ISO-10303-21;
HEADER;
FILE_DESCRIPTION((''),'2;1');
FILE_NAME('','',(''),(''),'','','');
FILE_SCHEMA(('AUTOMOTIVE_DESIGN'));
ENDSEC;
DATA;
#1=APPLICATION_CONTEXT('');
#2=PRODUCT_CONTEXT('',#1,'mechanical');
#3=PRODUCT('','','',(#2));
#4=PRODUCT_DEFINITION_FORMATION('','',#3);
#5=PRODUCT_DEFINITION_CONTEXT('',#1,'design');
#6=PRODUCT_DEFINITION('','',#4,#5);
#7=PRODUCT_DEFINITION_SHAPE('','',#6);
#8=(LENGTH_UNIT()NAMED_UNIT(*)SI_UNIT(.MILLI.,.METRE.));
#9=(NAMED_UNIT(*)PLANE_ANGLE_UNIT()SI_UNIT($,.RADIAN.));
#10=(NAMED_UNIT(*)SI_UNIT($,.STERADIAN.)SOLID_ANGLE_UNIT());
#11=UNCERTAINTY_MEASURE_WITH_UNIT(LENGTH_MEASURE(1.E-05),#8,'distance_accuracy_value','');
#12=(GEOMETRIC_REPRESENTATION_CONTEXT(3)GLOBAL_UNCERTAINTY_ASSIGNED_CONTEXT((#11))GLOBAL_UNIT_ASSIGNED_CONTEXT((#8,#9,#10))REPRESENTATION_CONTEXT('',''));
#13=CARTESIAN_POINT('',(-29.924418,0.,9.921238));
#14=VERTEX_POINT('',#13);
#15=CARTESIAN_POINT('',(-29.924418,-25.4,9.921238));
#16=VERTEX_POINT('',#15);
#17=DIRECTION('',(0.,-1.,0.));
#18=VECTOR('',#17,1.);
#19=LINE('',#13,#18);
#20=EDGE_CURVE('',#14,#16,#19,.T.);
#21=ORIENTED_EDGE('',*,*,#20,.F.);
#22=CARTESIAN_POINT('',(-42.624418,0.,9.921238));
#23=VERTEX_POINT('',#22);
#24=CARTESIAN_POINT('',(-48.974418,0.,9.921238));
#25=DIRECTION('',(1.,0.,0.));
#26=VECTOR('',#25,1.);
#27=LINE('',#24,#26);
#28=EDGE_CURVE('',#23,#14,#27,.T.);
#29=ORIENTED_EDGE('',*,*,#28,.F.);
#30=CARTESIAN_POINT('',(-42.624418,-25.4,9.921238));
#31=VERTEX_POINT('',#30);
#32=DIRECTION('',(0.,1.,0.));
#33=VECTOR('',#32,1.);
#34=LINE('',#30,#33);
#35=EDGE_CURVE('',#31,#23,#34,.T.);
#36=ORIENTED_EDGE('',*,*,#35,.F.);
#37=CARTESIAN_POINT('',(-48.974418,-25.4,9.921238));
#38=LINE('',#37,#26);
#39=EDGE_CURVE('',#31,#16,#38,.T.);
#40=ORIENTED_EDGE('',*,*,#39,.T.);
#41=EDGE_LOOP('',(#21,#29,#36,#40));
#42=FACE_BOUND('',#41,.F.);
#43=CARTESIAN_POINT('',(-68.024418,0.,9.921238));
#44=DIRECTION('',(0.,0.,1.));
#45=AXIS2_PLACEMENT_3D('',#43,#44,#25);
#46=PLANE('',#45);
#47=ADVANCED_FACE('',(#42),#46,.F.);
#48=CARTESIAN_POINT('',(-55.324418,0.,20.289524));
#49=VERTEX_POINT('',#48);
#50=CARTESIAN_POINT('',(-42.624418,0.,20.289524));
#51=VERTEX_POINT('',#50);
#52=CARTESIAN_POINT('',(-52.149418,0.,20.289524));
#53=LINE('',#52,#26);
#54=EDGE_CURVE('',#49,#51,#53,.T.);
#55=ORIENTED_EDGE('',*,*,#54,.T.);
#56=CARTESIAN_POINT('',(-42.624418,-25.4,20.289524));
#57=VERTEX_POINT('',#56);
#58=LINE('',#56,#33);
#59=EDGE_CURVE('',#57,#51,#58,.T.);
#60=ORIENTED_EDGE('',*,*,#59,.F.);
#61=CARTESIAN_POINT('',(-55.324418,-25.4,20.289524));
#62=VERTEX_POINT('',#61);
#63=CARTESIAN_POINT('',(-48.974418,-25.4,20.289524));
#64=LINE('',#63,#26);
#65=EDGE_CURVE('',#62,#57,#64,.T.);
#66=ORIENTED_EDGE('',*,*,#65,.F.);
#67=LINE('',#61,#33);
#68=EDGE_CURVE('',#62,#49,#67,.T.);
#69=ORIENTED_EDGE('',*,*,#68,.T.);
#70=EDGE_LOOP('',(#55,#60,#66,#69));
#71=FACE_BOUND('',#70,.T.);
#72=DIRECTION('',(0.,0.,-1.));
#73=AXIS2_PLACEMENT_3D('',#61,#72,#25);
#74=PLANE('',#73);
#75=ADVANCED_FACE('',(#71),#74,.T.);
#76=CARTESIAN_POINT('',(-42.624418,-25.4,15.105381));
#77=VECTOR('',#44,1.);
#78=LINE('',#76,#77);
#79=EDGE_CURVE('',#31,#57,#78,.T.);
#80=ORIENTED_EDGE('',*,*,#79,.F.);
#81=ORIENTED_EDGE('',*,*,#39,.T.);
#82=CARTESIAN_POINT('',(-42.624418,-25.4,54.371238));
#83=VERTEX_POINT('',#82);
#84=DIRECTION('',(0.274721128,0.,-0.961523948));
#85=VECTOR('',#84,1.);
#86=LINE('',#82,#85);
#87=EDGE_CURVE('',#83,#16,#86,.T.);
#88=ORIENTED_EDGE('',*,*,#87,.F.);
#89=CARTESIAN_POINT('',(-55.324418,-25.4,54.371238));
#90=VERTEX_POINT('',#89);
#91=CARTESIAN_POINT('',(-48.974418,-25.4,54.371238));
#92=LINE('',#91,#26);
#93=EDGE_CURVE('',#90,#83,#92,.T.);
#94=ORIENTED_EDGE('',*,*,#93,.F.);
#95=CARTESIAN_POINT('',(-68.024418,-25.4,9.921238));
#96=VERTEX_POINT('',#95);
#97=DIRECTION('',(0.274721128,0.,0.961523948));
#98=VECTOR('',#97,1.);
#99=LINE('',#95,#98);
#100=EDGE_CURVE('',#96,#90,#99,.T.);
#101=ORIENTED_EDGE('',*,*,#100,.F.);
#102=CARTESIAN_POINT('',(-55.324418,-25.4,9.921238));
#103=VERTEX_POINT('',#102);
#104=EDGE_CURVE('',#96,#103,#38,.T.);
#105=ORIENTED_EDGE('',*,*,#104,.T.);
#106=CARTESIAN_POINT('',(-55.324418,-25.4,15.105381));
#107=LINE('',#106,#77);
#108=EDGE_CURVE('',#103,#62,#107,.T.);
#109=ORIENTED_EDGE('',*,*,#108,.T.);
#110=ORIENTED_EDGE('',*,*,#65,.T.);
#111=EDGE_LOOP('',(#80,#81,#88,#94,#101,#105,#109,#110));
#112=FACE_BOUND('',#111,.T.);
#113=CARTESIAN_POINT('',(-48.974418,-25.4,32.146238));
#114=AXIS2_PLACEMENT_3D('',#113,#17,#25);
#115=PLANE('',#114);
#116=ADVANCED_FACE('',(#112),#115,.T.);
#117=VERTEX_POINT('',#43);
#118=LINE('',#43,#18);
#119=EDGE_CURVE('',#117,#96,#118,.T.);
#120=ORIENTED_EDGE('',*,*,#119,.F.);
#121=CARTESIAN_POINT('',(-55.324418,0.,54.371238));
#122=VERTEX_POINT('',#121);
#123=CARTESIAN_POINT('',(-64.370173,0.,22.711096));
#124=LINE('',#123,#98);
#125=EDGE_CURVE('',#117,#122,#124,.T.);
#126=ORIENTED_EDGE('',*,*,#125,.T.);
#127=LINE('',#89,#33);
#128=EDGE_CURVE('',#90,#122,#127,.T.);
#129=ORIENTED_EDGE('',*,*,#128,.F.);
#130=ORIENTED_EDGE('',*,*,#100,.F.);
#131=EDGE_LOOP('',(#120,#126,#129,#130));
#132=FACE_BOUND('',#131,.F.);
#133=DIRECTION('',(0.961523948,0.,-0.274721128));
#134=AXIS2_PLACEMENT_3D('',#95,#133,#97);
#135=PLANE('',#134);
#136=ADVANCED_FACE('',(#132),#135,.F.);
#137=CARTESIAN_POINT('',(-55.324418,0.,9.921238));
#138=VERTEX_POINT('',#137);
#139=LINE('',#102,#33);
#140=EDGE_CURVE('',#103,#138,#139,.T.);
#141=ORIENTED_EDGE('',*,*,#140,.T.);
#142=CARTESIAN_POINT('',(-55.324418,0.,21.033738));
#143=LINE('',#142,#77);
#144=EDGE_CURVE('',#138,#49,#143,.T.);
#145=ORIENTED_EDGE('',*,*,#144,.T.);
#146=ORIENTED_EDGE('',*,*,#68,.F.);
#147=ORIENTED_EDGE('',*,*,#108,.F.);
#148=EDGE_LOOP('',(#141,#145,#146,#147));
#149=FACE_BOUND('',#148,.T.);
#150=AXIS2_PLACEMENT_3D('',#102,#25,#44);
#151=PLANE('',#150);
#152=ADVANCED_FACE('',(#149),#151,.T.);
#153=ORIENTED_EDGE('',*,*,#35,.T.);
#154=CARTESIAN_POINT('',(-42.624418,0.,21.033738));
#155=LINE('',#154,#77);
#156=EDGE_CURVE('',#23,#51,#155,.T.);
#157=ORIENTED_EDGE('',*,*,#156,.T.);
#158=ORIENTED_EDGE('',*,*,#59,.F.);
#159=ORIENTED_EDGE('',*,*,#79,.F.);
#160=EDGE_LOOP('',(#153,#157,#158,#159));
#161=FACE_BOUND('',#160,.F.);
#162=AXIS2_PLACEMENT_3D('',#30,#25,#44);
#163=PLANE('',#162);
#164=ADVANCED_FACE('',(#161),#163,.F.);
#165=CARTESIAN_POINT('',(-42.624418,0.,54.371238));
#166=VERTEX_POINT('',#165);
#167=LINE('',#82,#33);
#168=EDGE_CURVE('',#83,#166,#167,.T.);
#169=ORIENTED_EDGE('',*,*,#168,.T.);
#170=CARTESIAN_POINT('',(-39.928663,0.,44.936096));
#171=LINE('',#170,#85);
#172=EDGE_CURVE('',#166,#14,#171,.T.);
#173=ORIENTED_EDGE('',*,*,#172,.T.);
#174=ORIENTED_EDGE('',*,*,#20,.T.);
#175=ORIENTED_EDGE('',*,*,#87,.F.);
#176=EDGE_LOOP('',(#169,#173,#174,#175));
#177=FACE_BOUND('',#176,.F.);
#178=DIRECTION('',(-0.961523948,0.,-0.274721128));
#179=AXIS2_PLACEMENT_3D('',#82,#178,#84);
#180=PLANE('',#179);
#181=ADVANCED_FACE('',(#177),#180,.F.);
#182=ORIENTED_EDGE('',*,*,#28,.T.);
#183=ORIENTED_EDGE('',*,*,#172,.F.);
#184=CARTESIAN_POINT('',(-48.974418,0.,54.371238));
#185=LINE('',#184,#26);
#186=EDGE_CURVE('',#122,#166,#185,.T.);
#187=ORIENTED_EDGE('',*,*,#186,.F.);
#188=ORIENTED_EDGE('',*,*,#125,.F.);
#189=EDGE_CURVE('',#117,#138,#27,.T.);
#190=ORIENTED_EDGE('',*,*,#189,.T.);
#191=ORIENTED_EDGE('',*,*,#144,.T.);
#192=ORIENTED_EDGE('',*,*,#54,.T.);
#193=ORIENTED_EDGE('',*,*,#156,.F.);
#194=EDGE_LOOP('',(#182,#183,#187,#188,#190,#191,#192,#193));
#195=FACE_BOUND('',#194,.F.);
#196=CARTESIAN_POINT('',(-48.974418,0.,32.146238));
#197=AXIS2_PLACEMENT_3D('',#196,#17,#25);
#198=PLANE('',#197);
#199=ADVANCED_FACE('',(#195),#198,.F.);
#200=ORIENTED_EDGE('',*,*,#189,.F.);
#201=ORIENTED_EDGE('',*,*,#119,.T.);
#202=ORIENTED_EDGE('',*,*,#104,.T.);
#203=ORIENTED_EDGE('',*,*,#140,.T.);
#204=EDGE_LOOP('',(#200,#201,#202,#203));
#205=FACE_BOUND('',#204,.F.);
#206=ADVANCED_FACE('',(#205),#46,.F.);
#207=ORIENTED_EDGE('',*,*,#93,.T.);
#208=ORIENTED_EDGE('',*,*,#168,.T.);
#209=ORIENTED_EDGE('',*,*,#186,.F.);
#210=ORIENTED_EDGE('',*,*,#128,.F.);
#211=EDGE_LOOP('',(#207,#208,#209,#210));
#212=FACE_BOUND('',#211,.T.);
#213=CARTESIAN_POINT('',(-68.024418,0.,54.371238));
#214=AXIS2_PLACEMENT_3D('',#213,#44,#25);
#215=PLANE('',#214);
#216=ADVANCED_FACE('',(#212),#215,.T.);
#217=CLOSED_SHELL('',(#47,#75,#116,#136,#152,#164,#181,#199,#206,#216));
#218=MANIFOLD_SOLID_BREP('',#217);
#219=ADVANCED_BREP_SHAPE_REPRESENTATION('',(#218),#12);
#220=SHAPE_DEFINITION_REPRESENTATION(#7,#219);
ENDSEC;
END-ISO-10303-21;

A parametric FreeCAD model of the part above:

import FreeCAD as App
import Part
import Sketcher

V = App.Vector
Q = App.Units.Quantity

doc = App.newDocument("Part")
body = doc.addObject("PartDesign::Body", "Body")

# Sketch on XZ plane
sketch1 = doc.addObject("Sketcher::SketchObject", "Sketch")
body.addObject(sketch1)
sketch1.AttachmentSupport = (doc.XZ_Plane, [""])
sketch1.MapMode = "FlatFace"
sketch1.addGeometry([
    Part.LineSegment(V(-68.024418, 54.371238, 0), V(-68.024418, 9.921238, 0)),
    Part.LineSegment(V(-68.024418, 9.921238, 0), V(-29.924418, 9.921238, 0)),
    Part.LineSegment(V(-29.924418, 9.921238, 0), V(-29.924418, 54.371238, 0)),
    Part.LineSegment(V(-29.924418, 54.371238, 0), V(-68.024418, 54.371238, 0)),
], False)
sketch1.addConstraint([
    Sketcher.Constraint("Coincident", 0, 2, 1, 1),
    Sketcher.Constraint("Coincident", 1, 2, 2, 1),
    Sketcher.Constraint("Coincident", 2, 2, 3, 1),
    Sketcher.Constraint("Coincident", 3, 2, 0, 1),
    Sketcher.Constraint("Vertical", 0),
    Sketcher.Constraint("Horizontal", 1),
    Sketcher.Constraint("Vertical", 2),
    Sketcher.Constraint("Horizontal", 3),
    Sketcher.Constraint("DistanceX", 1, 1, 1, 2, Q("1.5 in")),
    Sketcher.Constraint("DistanceY", 0, 2, 0, 1, Q("1.75 in")),
    Sketcher.Constraint("DistanceY", -1, 1, 0, 2, Q("0.3905999 in")),
    Sketcher.Constraint("DistanceX", 0, 2, -1, 1, Q("68.024418 mm")),
])
pad1 = doc.addObject("PartDesign::Pad", "Pad")
body.addObject(pad1)
pad1.Profile = sketch1
pad1.Length = Q("1 in")

# Sketch on XZ plane
sketch2 = doc.addObject("Sketcher::SketchObject", "Sketch001")
body.addObject(sketch2)
sketch2.AttachmentSupport = (doc.XZ_Plane, [""])
sketch2.MapMode = "FlatFace"
sketch2.AttachmentOffset = App.Placement(V(0, 0, 1 * 25.4), App.Rotation())
sketch2.addGeometry([
    Part.LineSegment(V(-55.324418, 20.289524, 0), V(-55.324418, 9.921238, 0)),
    Part.LineSegment(V(-55.324418, 9.921238, 0), V(-42.624418, 9.921238, 0)),
    Part.LineSegment(V(-42.624418, 9.921238, 0), V(-42.624418, 20.289524, 0)),
    Part.LineSegment(V(-42.624418, 20.289524, 0), V(-55.324418, 20.289524, 0)),
], False)
sketch2.addConstraint([
    Sketcher.Constraint("Coincident", 0, 2, 1, 1),
    Sketcher.Constraint("Coincident", 1, 2, 2, 1),
    Sketcher.Constraint("Coincident", 2, 2, 3, 1),
    Sketcher.Constraint("Coincident", 3, 2, 0, 1),
    Sketcher.Constraint("Vertical", 0),
    Sketcher.Constraint("Horizontal", 1),
    Sketcher.Constraint("Vertical", 2),
    Sketcher.Constraint("Horizontal", 3),
    Sketcher.Constraint("DistanceX", 1, 1, 1, 2, Q("0.5 in")),
    Sketcher.Constraint("DistanceY", -1, 1, 0, 2, Q("0.3905999 in")),
    Sketcher.Constraint("DistanceY", -1, 1, 2, 2, Q("0.7988002 in")),
    Sketcher.Constraint("DistanceX", 0, 2, -1, 1, Q("55.324418 mm")),
])
pocket1 = doc.addObject("PartDesign::Pocket", "Pocket")
body.addObject(pocket1)
pocket1.Profile = sketch2
pocket1.Type = "ThroughAll"

# Sketch on XZ plane
sketch3 = doc.addObject("Sketcher::SketchObject", "Sketch002")
body.addObject(sketch3)
sketch3.AttachmentSupport = (doc.XZ_Plane, [""])
sketch3.MapMode = "FlatFace"
sketch3.AttachmentOffset = App.Placement(V(0, 0, 1 * 25.4), App.Rotation())
sketch3.addGeometry([
    Part.LineSegment(V(-68.024418, 54.371238, 0), V(-68.024418, 9.921238, 0)),  # 0
    Part.LineSegment(V(-68.024418, 9.921238, 0), V(-55.324418, 54.371238, 0)),  # 1
    Part.LineSegment(V(-55.324418, 54.371238, 0), V(-68.024418, 54.371238, 0)),  # 2
    Part.LineSegment(V(-29.924418, 54.371238, 0), V(-42.624418, 54.371238, 0)),  # 3
    Part.LineSegment(V(-42.624418, 54.371238, 0), V(-29.924418, 9.921238, 0)),  # 4
    Part.LineSegment(V(-29.924418, 9.921238, 0), V(-29.924418, 54.371238, 0)),  # 5
], False)
sketch3.addConstraint([
    Sketcher.Constraint("Coincident", 0, 2, 1, 1),
    Sketcher.Constraint("Coincident", 1, 2, 2, 1),
    Sketcher.Constraint("Coincident", 2, 2, 0, 1),
    Sketcher.Constraint("Coincident", 3, 2, 4, 1),
    Sketcher.Constraint("Coincident", 4, 2, 5, 1),
    Sketcher.Constraint("Coincident", 5, 2, 3, 1),
    Sketcher.Constraint("Vertical", 0),
    Sketcher.Constraint("Horizontal", 2),
    Sketcher.Constraint("Horizontal", 3),
    Sketcher.Constraint("Vertical", 5),
    Sketcher.Constraint("Horizontal", 2, 2, 3, 2),
    Sketcher.Constraint("Horizontal", 0, 2, 4, 2),
    Sketcher.Constraint("Equal", 2, 3),
    Sketcher.Constraint("DistanceX", 2, 2, 2, 1, Q("0.5 in")),
    Sketcher.Constraint("DistanceX", 2, 2, 3, 2, Q("1 in")),
    Sketcher.Constraint("DistanceY", 0, 2, 0, 1, Q("1.75 in")),
    Sketcher.Constraint("DistanceY", -1, 1, 0, 2, Q("0.3905999 in")),
    Sketcher.Constraint("DistanceX", 0, 2, -1, 1, Q("68.024418 mm")),
])
pocket2 = doc.addObject("PartDesign::Pocket", "Pocket001")
body.addObject(pocket2)
pocket2.Profile = sketch3
pocket2.Type = "ThroughAll"

doc.recompute()
